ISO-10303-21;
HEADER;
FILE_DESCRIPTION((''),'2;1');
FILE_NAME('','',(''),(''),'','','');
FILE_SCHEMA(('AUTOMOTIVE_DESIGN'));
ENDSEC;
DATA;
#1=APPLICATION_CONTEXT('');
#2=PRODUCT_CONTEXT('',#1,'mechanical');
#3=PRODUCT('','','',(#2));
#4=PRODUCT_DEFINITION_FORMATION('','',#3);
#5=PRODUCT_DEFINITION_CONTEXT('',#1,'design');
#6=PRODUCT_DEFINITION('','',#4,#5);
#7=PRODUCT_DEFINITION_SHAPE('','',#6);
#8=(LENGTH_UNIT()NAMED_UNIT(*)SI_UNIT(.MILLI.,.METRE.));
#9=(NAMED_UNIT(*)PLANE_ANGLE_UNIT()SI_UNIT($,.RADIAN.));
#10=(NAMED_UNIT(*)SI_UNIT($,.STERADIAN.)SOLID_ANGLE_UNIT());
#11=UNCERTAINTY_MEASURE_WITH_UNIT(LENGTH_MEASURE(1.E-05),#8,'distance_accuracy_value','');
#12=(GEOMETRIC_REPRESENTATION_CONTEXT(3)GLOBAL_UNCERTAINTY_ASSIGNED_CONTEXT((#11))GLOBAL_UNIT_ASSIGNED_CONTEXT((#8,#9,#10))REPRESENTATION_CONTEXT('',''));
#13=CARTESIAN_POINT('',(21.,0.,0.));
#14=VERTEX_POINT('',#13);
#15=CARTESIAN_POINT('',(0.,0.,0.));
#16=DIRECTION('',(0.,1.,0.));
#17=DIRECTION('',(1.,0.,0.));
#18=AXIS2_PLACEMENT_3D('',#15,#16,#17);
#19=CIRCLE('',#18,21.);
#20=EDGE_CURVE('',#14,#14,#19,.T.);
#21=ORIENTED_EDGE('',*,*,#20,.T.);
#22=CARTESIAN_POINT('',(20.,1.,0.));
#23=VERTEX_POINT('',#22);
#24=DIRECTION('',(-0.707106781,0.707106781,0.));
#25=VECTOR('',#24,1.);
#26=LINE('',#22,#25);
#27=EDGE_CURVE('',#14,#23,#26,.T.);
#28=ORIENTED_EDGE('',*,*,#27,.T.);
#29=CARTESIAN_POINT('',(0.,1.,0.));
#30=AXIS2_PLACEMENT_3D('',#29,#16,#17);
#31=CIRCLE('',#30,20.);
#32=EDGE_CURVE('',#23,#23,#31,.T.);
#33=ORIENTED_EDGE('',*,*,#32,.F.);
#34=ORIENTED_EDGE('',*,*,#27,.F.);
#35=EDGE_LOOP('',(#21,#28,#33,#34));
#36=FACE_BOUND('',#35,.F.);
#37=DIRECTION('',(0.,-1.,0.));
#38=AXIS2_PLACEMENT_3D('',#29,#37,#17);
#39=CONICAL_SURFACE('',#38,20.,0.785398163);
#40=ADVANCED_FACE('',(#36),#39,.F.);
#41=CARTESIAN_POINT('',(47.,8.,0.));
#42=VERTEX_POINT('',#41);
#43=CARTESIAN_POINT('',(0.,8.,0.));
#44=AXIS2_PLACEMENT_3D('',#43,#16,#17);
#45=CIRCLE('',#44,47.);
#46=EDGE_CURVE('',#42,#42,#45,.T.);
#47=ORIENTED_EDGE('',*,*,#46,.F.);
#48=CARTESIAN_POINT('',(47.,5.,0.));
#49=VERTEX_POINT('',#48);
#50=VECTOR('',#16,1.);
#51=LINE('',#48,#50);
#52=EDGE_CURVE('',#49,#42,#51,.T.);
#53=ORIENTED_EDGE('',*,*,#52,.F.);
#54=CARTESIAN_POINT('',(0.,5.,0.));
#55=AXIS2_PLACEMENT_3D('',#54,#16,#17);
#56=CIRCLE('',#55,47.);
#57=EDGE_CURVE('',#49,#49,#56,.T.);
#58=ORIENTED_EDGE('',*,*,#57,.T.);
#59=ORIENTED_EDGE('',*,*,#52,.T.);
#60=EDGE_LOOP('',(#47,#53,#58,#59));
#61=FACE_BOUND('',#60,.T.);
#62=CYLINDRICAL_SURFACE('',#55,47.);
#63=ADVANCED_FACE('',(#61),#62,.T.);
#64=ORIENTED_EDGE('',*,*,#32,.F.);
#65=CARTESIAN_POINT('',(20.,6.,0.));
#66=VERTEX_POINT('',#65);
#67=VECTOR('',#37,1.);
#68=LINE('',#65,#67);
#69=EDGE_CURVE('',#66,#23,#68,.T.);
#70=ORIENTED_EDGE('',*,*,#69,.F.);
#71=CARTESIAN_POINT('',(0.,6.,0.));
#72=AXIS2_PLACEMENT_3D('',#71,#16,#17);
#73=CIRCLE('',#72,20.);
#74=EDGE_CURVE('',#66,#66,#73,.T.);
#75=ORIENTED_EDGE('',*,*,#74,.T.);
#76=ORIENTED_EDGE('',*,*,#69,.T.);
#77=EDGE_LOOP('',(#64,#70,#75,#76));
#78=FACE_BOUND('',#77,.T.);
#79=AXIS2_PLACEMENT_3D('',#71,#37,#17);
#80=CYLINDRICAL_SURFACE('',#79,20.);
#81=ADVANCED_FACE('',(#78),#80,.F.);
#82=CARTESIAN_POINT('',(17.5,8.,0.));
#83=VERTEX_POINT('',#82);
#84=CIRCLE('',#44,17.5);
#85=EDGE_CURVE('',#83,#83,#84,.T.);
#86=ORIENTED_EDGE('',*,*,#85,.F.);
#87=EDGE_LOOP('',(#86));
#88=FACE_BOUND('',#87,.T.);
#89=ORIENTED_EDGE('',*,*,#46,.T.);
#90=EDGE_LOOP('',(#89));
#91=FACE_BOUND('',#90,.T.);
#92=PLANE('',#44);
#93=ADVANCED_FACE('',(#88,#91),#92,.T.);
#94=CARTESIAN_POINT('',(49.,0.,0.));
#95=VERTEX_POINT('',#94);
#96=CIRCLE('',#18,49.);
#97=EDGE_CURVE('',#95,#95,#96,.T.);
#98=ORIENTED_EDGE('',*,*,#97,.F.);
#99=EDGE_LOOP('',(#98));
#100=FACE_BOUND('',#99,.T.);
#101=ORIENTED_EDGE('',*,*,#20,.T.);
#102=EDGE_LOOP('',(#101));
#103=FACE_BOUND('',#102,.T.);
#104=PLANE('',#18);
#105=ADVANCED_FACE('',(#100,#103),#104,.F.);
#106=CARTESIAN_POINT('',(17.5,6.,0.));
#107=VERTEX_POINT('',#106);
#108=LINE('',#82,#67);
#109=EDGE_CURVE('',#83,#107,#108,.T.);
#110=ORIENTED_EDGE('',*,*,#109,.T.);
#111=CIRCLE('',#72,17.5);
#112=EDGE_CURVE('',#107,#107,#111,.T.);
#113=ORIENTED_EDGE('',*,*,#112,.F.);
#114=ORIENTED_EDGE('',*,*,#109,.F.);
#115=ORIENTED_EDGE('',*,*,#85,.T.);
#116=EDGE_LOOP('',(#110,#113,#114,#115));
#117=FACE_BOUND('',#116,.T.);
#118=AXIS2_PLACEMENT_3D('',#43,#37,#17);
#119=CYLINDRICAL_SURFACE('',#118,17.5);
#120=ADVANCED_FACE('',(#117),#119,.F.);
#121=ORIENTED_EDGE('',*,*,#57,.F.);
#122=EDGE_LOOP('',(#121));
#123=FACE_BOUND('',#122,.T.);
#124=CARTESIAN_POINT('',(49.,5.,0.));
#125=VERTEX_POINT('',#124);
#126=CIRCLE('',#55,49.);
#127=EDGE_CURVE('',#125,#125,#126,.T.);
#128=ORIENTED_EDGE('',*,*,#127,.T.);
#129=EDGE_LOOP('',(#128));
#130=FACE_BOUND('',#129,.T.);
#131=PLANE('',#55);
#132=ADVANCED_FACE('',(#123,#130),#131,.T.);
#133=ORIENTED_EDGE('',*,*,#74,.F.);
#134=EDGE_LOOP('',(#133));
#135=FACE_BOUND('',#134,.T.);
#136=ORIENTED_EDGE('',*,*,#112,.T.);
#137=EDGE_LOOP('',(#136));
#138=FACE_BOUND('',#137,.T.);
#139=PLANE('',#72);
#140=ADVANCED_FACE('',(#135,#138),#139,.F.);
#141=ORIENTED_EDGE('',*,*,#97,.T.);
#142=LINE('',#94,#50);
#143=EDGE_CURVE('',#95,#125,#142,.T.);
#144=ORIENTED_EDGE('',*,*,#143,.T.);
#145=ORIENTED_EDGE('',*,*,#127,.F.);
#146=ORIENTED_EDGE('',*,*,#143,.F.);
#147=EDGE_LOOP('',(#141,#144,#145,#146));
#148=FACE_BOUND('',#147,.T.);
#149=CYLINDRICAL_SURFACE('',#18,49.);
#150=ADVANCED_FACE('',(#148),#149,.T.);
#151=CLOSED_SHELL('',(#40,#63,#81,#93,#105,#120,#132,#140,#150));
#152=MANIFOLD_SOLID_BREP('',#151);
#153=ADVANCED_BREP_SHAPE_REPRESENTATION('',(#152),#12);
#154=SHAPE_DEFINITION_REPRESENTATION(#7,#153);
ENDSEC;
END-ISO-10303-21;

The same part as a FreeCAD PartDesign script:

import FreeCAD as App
import Part
import Sketcher
from FreeCAD import Vector


def edges_at(feature, points):
    """Names of the edges that pass closest to the given points."""
    edges = feature.Shape.Edges
    near = lambda p: min(range(len(edges)), key=lambda i: edges[i].distToShape(Part.Vertex(*p))[0])
    return sorted({f"Edge{near(p) + 1}" for p in points})


def add_polygon(sketch, points):
    """Adds a closed chain of lines whose ends are joined by coincident constraints."""
    first, n = sketch.GeometryCount, len(points)
    for a, b in zip(points, points[1:] + points[:1]):
        sketch.addGeometry(Part.LineSegment(App.Vector(*a, 0), App.Vector(*b, 0)), False)
    for i in range(n):
        sketch.addConstraint(Sketcher.Constraint("Coincident", first + i, 2, first + (i + 1) % n, 1))

doc = App.newDocument("Part")
body = doc.addObject("PartDesign::Body", "Body")

# Sketch on XY plane
sketch1 = doc.addObject("Sketcher::SketchObject", "Sketch")
body.addObject(sketch1)
sketch1.AttachmentSupport = (doc.XY_Plane, [""])
sketch1.MapMode = "FlatFace"
add_polygon(sketch1, [(20, 0), (49, 0), (49, 5), (47, 5), (47, 8), (17.5, 8), (17.5, 6), (20, 6)])  # lines 0-7
sketch1.addConstraint([
    Sketcher.Constraint("Horizontal", 0),
    Sketcher.Constraint("Vertical", 1),
    Sketcher.Constraint("Horizontal", 2),
    Sketcher.Constraint("Vertical", 3),
    Sketcher.Constraint("Horizontal", 4),
    Sketcher.Constraint("Vertical", 5),
    Sketcher.Constraint("Horizontal", 6),
    Sketcher.Constraint("Vertical", 7),
    Sketcher.Constraint("PointOnObject", 0, 2, -1),
    Sketcher.Constraint("Equal", 2, 5),
    Sketcher.Constraint("DistanceX", 0, 1, 0, 2, 29.0),
    Sketcher.Constraint("DistanceX", 2, 2, 2, 1, 2.0),
    Sketcher.Constraint("DistanceY", 1, 1, 1, 2, 5.0),
    Sketcher.Constraint("DistanceY", 3, 1, 3, 2, 3.0),
    Sketcher.Constraint("DistanceX", 4, 2, 4, 1, 29.5),
    Sketcher.Constraint("DistanceX", -1, 1, 0, 2, 49.0),
])
revolution = doc.addObject("PartDesign::Revolution", "Revolution")
body.addObject(revolution)
revolution.Profile = sketch1
revolution.ReferenceAxis = (sketch1, ["V_Axis"])
revolution.Angle = 360
doc.recompute()

chamfer = doc.addObject("PartDesign::Chamfer", "Chamfer")
body.addObject(chamfer)
chamfer.Base = (revolution, edges_at(revolution, [(-20, 0, 0)]))
chamfer.Size = 1

doc.recompute()
